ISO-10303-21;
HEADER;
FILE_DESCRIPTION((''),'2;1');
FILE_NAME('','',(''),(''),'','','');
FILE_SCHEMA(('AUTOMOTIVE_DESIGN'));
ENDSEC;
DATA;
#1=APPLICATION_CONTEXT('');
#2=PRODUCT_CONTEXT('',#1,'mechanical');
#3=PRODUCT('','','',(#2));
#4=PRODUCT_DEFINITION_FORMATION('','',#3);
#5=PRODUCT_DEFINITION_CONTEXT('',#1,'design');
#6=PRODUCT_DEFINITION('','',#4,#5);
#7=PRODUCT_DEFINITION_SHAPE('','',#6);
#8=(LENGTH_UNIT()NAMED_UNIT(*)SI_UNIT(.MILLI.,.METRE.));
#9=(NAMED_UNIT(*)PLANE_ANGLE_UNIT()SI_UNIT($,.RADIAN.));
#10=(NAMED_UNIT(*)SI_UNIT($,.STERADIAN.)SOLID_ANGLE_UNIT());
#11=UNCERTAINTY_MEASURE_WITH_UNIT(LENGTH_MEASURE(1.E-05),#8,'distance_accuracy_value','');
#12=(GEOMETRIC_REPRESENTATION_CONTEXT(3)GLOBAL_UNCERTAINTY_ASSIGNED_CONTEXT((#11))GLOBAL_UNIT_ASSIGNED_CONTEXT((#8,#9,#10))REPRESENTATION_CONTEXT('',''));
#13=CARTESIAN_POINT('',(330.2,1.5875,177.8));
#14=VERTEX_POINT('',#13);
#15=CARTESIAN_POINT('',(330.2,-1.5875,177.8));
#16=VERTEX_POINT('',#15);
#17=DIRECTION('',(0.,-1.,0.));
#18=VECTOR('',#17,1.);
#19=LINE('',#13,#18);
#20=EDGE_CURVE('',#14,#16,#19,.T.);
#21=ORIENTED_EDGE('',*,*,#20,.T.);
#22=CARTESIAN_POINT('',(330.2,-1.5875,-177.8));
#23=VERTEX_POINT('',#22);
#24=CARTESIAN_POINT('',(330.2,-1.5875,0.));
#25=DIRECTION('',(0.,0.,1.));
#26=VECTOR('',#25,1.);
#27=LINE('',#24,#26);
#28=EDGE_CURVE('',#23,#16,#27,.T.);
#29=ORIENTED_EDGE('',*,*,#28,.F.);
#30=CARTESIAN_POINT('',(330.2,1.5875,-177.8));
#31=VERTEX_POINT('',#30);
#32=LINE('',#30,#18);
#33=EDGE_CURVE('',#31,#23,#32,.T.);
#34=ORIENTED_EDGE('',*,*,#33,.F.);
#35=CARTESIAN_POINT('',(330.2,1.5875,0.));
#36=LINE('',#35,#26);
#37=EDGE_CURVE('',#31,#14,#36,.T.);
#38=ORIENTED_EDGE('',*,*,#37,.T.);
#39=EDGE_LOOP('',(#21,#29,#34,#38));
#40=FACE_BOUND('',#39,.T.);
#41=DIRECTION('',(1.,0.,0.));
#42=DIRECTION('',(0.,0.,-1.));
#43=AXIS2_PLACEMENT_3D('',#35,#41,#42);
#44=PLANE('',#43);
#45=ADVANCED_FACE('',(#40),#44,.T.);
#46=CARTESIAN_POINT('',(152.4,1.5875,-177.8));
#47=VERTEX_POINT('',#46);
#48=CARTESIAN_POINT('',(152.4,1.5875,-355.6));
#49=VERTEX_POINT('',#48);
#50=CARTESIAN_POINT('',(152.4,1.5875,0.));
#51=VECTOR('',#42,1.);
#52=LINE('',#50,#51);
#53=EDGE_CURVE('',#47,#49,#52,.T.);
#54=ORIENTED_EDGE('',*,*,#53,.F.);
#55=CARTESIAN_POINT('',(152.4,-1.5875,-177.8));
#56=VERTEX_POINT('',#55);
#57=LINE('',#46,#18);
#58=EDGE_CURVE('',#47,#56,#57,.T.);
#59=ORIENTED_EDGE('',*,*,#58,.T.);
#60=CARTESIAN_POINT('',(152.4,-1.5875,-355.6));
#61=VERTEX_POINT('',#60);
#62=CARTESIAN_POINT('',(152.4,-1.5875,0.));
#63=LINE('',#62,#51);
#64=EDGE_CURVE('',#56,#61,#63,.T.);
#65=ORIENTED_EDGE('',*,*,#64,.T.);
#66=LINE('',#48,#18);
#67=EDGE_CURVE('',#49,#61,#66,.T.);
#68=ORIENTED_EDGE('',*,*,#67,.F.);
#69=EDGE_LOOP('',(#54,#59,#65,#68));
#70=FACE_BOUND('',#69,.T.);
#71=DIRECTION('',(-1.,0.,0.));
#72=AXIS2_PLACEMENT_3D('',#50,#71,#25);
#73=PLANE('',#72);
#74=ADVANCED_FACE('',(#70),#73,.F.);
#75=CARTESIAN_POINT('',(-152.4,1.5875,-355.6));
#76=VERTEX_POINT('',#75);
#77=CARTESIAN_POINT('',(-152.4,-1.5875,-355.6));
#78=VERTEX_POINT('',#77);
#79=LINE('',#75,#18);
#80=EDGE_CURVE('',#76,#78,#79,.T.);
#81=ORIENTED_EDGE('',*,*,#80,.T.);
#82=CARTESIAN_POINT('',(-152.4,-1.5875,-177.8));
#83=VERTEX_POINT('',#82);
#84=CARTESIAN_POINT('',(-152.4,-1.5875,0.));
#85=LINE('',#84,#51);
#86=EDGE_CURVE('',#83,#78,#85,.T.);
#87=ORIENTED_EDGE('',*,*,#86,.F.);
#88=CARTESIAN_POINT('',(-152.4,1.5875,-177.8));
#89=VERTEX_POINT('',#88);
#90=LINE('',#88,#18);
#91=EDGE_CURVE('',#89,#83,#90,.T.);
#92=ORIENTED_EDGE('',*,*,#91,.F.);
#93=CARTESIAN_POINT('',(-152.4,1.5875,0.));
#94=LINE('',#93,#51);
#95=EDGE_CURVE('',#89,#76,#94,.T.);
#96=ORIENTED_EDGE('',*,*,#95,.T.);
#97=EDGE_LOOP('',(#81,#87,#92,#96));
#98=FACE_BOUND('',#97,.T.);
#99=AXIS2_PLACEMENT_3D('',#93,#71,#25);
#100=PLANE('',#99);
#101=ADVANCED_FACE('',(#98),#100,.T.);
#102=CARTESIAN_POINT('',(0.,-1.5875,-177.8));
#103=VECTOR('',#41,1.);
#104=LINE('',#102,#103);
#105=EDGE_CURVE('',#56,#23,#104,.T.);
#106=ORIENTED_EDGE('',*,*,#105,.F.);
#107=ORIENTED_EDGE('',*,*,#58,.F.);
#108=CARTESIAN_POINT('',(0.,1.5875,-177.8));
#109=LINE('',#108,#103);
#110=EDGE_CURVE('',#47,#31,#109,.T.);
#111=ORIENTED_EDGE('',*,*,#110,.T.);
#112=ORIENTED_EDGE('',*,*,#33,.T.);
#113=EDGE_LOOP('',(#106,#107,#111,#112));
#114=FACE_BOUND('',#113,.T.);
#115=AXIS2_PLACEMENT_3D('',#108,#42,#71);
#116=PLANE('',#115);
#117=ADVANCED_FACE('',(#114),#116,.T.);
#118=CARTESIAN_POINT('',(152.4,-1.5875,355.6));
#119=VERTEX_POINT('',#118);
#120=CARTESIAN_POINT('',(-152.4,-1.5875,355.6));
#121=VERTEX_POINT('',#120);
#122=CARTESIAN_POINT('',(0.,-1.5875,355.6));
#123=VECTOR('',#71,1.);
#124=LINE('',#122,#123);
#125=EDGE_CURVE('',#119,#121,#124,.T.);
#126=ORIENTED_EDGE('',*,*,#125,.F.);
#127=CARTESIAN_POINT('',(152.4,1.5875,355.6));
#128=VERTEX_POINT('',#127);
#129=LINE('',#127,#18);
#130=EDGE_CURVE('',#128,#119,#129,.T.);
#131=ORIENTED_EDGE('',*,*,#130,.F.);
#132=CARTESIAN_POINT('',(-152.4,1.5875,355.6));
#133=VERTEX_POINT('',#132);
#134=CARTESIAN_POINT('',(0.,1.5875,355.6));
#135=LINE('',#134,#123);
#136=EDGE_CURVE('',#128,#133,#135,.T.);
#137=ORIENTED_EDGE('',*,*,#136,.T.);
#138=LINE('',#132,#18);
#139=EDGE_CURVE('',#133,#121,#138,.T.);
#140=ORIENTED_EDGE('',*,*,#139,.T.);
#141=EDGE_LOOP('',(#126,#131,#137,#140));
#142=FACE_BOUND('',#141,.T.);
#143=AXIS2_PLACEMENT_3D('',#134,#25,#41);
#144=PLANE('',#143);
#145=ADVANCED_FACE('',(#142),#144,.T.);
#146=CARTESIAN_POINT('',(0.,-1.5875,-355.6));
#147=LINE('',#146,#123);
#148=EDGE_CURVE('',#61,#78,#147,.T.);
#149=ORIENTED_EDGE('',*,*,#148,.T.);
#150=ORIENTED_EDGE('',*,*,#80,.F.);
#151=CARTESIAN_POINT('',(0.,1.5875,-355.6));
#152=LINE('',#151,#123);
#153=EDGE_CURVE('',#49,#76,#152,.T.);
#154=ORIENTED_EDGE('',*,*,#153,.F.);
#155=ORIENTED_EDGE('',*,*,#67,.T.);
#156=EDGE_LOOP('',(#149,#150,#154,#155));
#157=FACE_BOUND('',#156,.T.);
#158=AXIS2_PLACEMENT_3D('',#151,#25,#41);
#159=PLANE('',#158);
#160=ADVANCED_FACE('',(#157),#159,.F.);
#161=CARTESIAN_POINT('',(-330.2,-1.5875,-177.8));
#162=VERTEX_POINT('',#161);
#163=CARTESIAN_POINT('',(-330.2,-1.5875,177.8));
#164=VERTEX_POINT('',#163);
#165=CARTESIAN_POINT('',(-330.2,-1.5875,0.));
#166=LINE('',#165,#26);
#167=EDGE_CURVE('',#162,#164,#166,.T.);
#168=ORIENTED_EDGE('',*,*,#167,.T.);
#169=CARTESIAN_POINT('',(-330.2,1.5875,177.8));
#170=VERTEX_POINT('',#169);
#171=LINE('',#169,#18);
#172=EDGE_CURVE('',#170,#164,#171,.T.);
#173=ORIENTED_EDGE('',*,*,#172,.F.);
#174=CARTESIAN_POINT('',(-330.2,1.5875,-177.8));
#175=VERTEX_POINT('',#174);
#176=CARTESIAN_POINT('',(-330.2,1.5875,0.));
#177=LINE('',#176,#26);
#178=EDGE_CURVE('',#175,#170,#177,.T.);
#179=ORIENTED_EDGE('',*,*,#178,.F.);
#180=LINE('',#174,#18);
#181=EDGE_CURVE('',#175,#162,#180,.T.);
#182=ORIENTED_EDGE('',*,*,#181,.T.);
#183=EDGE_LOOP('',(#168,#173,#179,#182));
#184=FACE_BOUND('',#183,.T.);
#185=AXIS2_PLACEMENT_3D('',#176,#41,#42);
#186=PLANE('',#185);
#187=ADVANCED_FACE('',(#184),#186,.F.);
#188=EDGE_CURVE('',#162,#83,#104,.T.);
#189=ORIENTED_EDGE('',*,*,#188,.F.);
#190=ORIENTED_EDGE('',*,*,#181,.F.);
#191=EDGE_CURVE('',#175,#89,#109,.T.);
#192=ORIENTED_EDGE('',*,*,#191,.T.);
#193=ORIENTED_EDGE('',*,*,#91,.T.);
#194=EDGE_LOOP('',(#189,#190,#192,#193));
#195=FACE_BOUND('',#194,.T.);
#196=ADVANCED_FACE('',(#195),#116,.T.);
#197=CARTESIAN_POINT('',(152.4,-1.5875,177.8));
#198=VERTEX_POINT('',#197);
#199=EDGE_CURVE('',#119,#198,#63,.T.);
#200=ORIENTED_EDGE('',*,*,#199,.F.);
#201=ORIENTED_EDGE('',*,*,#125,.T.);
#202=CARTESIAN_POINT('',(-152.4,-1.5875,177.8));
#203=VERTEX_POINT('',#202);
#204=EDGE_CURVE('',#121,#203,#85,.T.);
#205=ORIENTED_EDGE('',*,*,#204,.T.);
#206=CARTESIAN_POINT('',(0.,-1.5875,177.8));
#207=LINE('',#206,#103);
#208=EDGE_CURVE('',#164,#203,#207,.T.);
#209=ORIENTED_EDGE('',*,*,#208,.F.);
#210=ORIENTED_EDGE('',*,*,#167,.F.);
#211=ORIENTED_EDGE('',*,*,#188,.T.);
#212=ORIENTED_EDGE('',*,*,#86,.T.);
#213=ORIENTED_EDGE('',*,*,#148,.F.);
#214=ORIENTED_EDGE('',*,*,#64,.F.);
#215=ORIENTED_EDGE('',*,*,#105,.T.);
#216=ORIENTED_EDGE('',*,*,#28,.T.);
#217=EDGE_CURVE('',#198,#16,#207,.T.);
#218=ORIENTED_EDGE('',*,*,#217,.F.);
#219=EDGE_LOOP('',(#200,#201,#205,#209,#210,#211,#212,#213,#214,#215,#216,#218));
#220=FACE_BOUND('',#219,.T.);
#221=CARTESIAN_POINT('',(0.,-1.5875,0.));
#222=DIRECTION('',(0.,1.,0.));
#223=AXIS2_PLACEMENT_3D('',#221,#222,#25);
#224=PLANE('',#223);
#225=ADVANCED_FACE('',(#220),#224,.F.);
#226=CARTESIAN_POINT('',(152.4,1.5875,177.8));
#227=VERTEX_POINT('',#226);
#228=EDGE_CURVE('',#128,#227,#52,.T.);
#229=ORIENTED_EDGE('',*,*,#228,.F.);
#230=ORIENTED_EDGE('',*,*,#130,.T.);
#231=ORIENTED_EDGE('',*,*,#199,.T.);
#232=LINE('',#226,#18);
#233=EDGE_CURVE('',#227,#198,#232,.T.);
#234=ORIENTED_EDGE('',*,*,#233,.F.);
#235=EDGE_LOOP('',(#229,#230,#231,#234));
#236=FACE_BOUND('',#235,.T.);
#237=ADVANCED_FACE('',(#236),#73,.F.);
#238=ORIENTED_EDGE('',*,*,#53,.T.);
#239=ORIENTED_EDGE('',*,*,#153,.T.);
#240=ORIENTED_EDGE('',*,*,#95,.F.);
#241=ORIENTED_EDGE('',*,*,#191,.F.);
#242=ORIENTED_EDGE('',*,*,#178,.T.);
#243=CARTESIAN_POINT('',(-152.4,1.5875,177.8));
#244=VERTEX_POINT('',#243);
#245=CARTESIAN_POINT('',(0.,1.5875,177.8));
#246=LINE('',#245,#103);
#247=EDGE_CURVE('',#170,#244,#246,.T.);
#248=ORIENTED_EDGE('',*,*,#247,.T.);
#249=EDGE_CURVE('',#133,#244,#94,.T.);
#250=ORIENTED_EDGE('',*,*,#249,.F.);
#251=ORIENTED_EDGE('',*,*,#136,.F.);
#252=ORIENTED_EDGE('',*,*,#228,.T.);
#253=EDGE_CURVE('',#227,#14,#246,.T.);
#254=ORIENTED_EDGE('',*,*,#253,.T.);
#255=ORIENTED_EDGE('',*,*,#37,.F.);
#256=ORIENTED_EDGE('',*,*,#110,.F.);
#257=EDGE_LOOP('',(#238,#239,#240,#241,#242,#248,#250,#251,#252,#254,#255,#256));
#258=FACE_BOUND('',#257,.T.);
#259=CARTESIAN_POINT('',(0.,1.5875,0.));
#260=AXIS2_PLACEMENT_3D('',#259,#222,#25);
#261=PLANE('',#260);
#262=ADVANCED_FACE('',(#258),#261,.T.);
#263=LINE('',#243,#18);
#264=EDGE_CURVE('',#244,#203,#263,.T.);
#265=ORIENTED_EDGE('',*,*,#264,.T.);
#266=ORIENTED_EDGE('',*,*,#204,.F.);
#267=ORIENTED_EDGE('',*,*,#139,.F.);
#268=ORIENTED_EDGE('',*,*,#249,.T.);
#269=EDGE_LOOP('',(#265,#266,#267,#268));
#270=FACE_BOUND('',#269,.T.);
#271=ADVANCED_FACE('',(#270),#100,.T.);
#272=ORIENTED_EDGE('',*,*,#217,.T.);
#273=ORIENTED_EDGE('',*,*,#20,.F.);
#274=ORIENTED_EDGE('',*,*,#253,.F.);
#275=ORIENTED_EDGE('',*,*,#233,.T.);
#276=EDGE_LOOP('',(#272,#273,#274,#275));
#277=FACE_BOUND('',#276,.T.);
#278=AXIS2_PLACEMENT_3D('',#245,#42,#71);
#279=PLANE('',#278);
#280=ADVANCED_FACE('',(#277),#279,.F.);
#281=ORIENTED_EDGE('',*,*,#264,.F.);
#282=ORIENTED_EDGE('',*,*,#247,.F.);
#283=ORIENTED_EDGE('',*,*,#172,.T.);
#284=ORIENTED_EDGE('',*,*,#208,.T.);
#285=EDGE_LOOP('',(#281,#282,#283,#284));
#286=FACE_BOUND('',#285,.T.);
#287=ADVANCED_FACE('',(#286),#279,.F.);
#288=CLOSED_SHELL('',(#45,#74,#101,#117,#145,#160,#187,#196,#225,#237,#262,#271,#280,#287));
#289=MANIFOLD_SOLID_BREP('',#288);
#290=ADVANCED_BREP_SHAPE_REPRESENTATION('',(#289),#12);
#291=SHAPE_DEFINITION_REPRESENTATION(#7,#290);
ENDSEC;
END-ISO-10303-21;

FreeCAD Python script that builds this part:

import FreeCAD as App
import Part
import Sketcher
from FreeCAD import Vector
Q = App.Units.Quantity

doc = App.newDocument("Part")
body = doc.addObject("PartDesign::Body", "Body")

# Sketch on XZ plane
sketch1 = body.newObject("Sketcher::SketchObject", "Sketch")
sketch1.AttachmentSupport = (doc.getObject("XZ_Plane"), [""])
sketch1.MapMode = "FlatFace"
sketch1.addGeometry(Part.LineSegment(Vector(-330, -178, 0), Vector(-330, 178, 0)), False)
sketch1.addGeometry(Part.LineSegment(Vector(-330, 178, 0), Vector(-152, 178, 0)), False)
sketch1.addGeometry(Part.LineSegment(Vector(-152, 178, 0), Vector(-152, 356, 0)), False)
sketch1.addGeometry(Part.LineSegment(Vector(-152, 356, 0), Vector(152, 356, 0)), False)
sketch1.addGeometry(Part.LineSegment(Vector(152, 356, 0), Vector(152, 178, 0)), False)
sketch1.addGeometry(Part.LineSegment(Vector(152, 178, 0), Vector(330, 178, 0)), False)
sketch1.addGeometry(Part.LineSegment(Vector(330, 178, 0), Vector(330, -178, 0)), False)
sketch1.addGeometry(Part.LineSegment(Vector(330, -178, 0), Vector(152, -178, 0)), False)
sketch1.addGeometry(Part.LineSegment(Vector(152, -178, 0), Vector(152, -356, 0)), False)
sketch1.addGeometry(Part.LineSegment(Vector(152, -356, 0), Vector(-152, -356, 0)), False)
sketch1.addGeometry(Part.LineSegment(Vector(-152, -356, 0), Vector(-152, -178, 0)), False)
sketch1.addGeometry(Part.LineSegment(Vector(-152, -178, 0), Vector(-330, -178, 0)), False)
sketch1.addConstraint(Sketcher.Constraint("Coincident", 0, 2, 1, 1))
sketch1.addConstraint(Sketcher.Constraint("Coincident", 1, 2, 2, 1))
sketch1.addConstraint(Sketcher.Constraint("Coincident", 2, 2, 3, 1))
sketch1.addConstraint(Sketcher.Constraint("Coincident", 3, 2, 4, 1))
sketch1.addConstraint(Sketcher.Constraint("Coincident", 4, 2, 5, 1))
sketch1.addConstraint(Sketcher.Constraint("Coincident", 5, 2, 6, 1))
sketch1.addConstraint(Sketcher.Constraint("Coincident", 6, 2, 7, 1))
sketch1.addConstraint(Sketcher.Constraint("Coincident", 7, 2, 8, 1))
sketch1.addConstraint(Sketcher.Constraint("Coincident", 8, 2, 9, 1))
sketch1.addConstraint(Sketcher.Constraint("Coincident", 9, 2, 10, 1))
sketch1.addConstraint(Sketcher.Constraint("Coincident", 10, 2, 11, 1))
sketch1.addConstraint(Sketcher.Constraint("Coincident", 11, 2, 0, 1))
sketch1.addConstraint(Sketcher.Constraint("Vertical", 0))
sketch1.addConstraint(Sketcher.Constraint("Horizontal", 1))
sketch1.addConstraint(Sketcher.Constraint("Vertical", 2))
sketch1.addConstraint(Sketcher.Constraint("Horizontal", 3))
sketch1.addConstraint(Sketcher.Constraint("Vertical", 4))
sketch1.addConstraint(Sketcher.Constraint("Horizontal", 5))
sketch1.addConstraint(Sketcher.Constraint("Vertical", 6))
sketch1.addConstraint(Sketcher.Constraint("Horizontal", 7))
sketch1.addConstraint(Sketcher.Constraint("Vertical", 8))
sketch1.addConstraint(Sketcher.Constraint("Horizontal", 9))
sketch1.addConstraint(Sketcher.Constraint("Vertical", 10))
sketch1.addConstraint(Sketcher.Constraint("Horizontal", 11))
sketch1.addConstraint(Sketcher.Constraint("Symmetric", 0, 2, 6, 2, -1, 1))
sketch1.addConstraint(Sketcher.Constraint("Symmetric", 2, 2, 8, 2, -1, 1))
sketch1.addConstraint(Sketcher.Constraint("Symmetric", 4, 2, 10, 2, -1, 1))
sketch1.addConstraint(Sketcher.Constraint("Symmetric", 1, 2, 4, 2, -2))
sketch1.addConstraint(Sketcher.Constraint("Equal", 11, 2))
sketch1.addConstraint(Sketcher.Constraint("DistanceX", 1, 1, 1, 2, Q("7 in")))
sketch1.addConstraint(Sketcher.Constraint("DistanceX", 3, 1, 3, 2, Q("12 in")))
sketch1.addConstraint(Sketcher.Constraint("DistanceY", 0, 1, 0, 2, Q("14 in")))
pad1 = body.newObject("PartDesign::Pad", "Pad")
pad1.Profile = sketch1
pad1.Length = Q("0.125 in")
pad1.Midplane = True

doc.recompute()
